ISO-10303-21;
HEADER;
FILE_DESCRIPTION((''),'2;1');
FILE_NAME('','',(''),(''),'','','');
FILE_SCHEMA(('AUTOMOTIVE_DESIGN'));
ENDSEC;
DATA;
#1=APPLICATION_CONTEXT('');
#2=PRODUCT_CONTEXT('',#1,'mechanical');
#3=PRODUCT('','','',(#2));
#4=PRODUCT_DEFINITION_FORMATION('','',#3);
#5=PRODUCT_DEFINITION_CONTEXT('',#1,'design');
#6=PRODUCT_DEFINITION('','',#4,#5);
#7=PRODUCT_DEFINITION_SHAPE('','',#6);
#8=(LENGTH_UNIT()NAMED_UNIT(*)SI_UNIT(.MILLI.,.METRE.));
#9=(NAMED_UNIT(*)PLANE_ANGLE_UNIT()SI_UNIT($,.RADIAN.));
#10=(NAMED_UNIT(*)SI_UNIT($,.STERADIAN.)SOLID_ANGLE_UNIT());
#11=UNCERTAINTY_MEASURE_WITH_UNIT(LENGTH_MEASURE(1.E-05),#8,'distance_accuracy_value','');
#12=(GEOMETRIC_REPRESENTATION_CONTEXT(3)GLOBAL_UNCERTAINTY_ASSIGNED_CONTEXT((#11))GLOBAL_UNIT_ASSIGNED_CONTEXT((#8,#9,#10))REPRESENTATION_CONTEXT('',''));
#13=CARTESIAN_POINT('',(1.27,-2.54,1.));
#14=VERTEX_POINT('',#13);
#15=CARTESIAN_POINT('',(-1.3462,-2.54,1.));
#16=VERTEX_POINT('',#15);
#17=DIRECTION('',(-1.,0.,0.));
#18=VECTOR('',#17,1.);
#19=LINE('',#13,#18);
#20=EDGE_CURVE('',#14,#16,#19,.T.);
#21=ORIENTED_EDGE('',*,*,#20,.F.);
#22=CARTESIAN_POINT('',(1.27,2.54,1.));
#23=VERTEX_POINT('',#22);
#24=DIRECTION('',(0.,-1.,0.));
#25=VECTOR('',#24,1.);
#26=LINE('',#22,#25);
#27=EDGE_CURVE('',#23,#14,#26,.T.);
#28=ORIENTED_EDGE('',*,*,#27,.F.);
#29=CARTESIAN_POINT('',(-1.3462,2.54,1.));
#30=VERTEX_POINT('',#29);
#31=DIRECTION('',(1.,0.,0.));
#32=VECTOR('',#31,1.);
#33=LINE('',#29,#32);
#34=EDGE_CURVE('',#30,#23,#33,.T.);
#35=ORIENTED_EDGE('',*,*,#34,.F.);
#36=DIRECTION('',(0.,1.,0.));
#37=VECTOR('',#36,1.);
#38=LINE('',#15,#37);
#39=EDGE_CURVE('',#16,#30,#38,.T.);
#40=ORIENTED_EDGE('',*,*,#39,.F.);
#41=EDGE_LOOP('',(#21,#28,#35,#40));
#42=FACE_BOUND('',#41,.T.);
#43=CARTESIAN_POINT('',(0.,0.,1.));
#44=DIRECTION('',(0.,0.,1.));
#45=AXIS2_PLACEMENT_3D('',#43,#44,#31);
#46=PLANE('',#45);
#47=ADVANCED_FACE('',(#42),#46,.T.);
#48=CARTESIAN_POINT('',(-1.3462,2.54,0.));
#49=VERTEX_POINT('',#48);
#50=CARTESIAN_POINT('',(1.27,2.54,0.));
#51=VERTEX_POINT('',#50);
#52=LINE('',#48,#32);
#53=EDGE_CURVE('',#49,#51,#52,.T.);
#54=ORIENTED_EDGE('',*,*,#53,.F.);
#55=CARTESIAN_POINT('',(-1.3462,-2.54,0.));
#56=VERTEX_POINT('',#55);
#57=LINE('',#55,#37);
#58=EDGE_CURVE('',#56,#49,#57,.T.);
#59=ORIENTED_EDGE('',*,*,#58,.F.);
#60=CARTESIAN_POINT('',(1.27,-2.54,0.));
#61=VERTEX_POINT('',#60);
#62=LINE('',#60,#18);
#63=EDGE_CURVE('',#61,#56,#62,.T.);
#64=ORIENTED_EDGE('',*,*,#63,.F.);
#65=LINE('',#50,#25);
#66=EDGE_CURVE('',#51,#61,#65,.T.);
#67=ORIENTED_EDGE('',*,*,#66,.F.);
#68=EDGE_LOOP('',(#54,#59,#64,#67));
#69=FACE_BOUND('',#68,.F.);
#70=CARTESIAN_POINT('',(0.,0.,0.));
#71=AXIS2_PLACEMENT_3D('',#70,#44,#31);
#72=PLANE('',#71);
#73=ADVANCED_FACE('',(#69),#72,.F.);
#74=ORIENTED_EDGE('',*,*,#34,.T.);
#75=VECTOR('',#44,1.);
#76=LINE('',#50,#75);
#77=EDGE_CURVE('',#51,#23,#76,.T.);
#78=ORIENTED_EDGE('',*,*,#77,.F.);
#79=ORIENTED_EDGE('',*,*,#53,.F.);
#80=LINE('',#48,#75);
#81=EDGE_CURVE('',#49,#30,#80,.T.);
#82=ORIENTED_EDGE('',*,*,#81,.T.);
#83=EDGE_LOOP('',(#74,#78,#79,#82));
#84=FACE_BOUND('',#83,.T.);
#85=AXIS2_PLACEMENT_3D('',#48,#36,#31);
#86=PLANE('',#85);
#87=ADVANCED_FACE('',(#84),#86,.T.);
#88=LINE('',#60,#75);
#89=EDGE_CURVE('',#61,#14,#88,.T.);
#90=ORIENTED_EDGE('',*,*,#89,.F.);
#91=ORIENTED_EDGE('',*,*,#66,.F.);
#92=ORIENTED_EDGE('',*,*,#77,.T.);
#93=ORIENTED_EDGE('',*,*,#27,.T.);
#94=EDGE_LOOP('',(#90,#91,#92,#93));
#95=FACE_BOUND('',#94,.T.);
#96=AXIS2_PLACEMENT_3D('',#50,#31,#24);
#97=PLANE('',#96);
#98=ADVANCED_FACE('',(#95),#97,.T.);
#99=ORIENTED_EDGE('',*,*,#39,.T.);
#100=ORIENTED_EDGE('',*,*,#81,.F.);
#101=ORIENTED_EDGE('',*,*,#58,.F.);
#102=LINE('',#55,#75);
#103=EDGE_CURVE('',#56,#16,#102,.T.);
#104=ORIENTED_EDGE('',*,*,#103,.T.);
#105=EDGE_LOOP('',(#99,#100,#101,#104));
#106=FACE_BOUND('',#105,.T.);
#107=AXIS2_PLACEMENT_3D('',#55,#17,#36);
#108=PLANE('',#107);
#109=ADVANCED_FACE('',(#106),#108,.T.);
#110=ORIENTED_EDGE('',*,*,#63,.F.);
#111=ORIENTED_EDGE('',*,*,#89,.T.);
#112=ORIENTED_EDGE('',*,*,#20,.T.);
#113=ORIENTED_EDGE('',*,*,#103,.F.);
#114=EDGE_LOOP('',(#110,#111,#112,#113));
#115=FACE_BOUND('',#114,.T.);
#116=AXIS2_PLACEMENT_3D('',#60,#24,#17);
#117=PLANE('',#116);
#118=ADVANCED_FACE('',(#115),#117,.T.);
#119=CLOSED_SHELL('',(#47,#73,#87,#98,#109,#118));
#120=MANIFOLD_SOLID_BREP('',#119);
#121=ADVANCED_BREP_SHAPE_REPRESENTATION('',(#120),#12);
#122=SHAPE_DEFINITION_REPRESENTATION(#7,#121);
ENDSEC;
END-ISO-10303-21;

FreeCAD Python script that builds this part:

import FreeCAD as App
import Part
import Sketcher

V = App.Vector
Q = App.Units.Quantity


def add_polygon(sketch, points):
    """Adds a closed chain of lines whose ends are joined by coincident constraints."""
    first, n = sketch.GeometryCount, len(points)
    for a, b in zip(points, points[1:] + points[:1]):
        sketch.addGeometry(Part.LineSegment(App.Vector(*a, 0), App.Vector(*b, 0)), False)
    for i in range(n):
        sketch.addConstraint(Sketcher.Constraint("Coincident", first + i, 2, first + (i + 1) % n, 1))

doc = App.newDocument("Part")
params = doc.addObject("Spreadsheet::Sheet", "Params")
for row, (alias, value) in enumerate([
    ("sketch1_height", "0.2 in"),
    ("sketch1_width", "0.103 in"),
    ("pad1_length", "1 mm"),
], start=1):
    params.set(f"A{row}", alias)
    params.set(f"B{row}", "=" + value)
    params.setAlias(f"B{row}", alias)

body = doc.addObject("PartDesign::Body", "Body")

# Sketch on XY plane
sketch1 = body.newObject("Sketcher::SketchObject", "Sketch")
sketch1.AttachmentSupport = (doc.getObject("XY_Plane"), [""])
sketch1.MapMode = "FlatFace"
add_polygon(sketch1, [(1.3, 2.5), (-1.3, 2.5), (-1.3, -2.5), (1.3, -2.5)])  # lines 0-3
sketch1.addConstraint(Sketcher.Constraint("Horizontal", 0))
sketch1.addConstraint(Sketcher.Constraint("Vertical", 1))
sketch1.addConstraint(Sketcher.Constraint("Horizontal", 2))
sketch1.addConstraint(Sketcher.Constraint("Vertical", 3))
sketch1.addConstraint(Sketcher.Constraint("DistanceY", 1, 2, 1, 1, Q("0.2 in")))
sketch1.addConstraint(Sketcher.Constraint("DistanceY", -1, 1, 0, 2, Q("0.1 in")))
sketch1.addConstraint(Sketcher.Constraint("DistanceX", 0, 2, 0, 1, Q("0.103 in")))
sketch1.addConstraint(Sketcher.Constraint("DistanceX", -1, 1, 2, 2, Q("0.05 in")))
sketch1.setExpression("Constraints[8]", "Params.sketch1_height")
sketch1.setExpression("Constraints[10]", "Params.sketch1_width")
pad1 = body.newObject("PartDesign::Pad", "Pad")
pad1.Profile = sketch1
pad1.setExpression("Length", "Params.pad1_length")

doc.recompute()
